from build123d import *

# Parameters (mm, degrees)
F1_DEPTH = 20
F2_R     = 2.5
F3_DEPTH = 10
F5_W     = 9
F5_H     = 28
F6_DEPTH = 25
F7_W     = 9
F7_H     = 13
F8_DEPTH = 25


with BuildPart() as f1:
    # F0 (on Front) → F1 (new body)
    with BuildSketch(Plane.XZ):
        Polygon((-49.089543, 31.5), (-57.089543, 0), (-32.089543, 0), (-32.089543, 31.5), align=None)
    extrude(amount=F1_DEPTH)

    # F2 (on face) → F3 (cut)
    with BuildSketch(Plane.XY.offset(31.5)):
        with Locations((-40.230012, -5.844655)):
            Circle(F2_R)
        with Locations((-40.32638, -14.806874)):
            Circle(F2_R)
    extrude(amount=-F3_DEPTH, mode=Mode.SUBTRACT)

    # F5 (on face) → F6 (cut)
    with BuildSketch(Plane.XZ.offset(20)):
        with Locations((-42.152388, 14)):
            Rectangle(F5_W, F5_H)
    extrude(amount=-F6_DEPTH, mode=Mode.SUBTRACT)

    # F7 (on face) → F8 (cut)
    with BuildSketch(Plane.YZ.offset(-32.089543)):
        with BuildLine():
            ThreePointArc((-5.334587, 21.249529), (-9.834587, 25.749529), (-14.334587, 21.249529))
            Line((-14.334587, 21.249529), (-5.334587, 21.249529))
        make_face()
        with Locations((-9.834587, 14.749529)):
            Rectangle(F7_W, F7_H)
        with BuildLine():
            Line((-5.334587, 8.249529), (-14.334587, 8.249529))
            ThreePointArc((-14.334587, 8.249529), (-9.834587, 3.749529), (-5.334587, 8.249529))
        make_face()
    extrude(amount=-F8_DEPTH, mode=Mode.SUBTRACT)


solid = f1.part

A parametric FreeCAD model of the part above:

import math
import FreeCAD as App
import Part
import Sketcher

V = App.Vector

doc = App.newDocument("Part")
body = doc.addObject("PartDesign::Body", "Body")

# Sketch on XZ plane
sketch1 = body.newObject("Sketcher::SketchObject", "Sketch")
sketch1.AttachmentSupport = (doc.getObject("XZ_Plane"), [""])
sketch1.MapMode = "FlatFace"
sketch1.addGeometry(Part.LineSegment(V(-49, 32, 0), V(-57, 0, 0)), False)
sketch1.addGeometry(Part.LineSegment(V(-57, 0, 0), V(-32, 0, 0)), False)
sketch1.addGeometry(Part.LineSegment(V(-32, 0, 0), V(-32, 32, 0)), False)
sketch1.addGeometry(Part.LineSegment(V(-32, 32, 0), V(-49, 32, 0)), False)
sketch1.addConstraint(Sketcher.Constraint("Coincident", 0, 2, 1, 1))
sketch1.addConstraint(Sketcher.Constraint("Coincident", 1, 2, 2, 1))
sketch1.addConstraint(Sketcher.Constraint("Coincident", 2, 2, 3, 1))
sketch1.addConstraint(Sketcher.Constraint("Coincident", 3, 2, 0, 1))
sketch1.addConstraint(Sketcher.Constraint("Horizontal", 1))
sketch1.addConstraint(Sketcher.Constraint("Vertical", 2))
sketch1.addConstraint(Sketcher.Constraint("Horizontal", 3))
sketch1.addConstraint(Sketcher.Constraint("PointOnObject", 0, 2, -1))
sketch1.addConstraint(Sketcher.Constraint("DistanceX", 1, 1, 1, 2, 25.0))
sketch1.addConstraint(Sketcher.Constraint("DistanceX", 3, 2, 3, 1, 17.0))
sketch1.addConstraint(Sketcher.Constraint("DistanceY", 2, 1, 2, 2, 31.5))
sketch1.addConstraint(Sketcher.Constraint("DistanceX", 0, 2, -1, 1, 57.089543))
pad1 = body.newObject("PartDesign::Pad", "Pad")
pad1.Profile = sketch1
pad1.Length = 20

# Sketch on XY plane
sketch2 = body.newObject("Sketcher::SketchObject", "Sketch001")
sketch2.AttachmentSupport = (doc.getObject("XY_Plane"), [""])
sketch2.MapMode = "FlatFace"
sketch2.AttachmentOffset = App.Placement(V(0, 0, 31.5), App.Rotation())
sketch2.addGeometry(Part.Circle(V(-40.2, -5.8, 0), V(0, 0, 1), 2.5), False)
sketch2.addGeometry(Part.Circle(V(-40.3, -14.8, 0), V(0, 0, 1), 2.5), False)
sketch2.addConstraint(Sketcher.Constraint("Equal", 0, 1))
sketch2.addConstraint(Sketcher.Constraint("Diameter", 0, 5.0))
sketch2.addConstraint(Sketcher.Constraint("DistanceX", 1, 3, -1, 1, 40.32638))
sketch2.addConstraint(Sketcher.Constraint("DistanceY", 1, 3, 0, 3, 8.962219))
sketch2.addConstraint(Sketcher.Constraint("DistanceX", 0, 3, -1, 1, 40.230012))
sketch2.addConstraint(Sketcher.Constraint("DistanceY", 0, 3, -1, 1, 5.844655))
pocket1 = body.newObject("PartDesign::Pocket", "Pocket")
pocket1.Profile = sketch2
pocket1.Length = 10

# Sketch on XZ plane
sketch3 = body.newObject("Sketcher::SketchObject", "Sketch002")
sketch3.AttachmentSupport = (doc.getObject("XZ_Plane"), [""])
sketch3.MapMode = "FlatFace"
sketch3.AttachmentOffset = App.Placement(V(0, 0, 20), App.Rotation())
sketch3.addGeometry(Part.LineSegment(V(-47, 28, 0), V(-47, 0, 0)), False)
sketch3.addGeometry(Part.LineSegment(V(-47, 0, 0), V(-38, 0, 0)), False)
sketch3.addGeometry(Part.LineSegment(V(-38, 0, 0), V(-38, 28, 0)), False)
sketch3.addGeometry(Part.LineSegment(V(-38, 28, 0), V(-47, 28, 0)), False)
sketch3.addConstraint(Sketcher.Constraint("Coincident", 0, 2, 1, 1))
sketch3.addConstraint(Sketcher.Constraint("Coincident", 1, 2, 2, 1))
sketch3.addConstraint(Sketcher.Constraint("Coincident", 2, 2, 3, 1))
sketch3.addConstraint(Sketcher.Constraint("Coincident", 3, 2, 0, 1))
sketch3.addConstraint(Sketcher.Constraint("Vertical", 0))
sketch3.addConstraint(Sketcher.Constraint("Horizontal", 1))
sketch3.addConstraint(Sketcher.Constraint("Vertical", 2))
sketch3.addConstraint(Sketcher.Constraint("Horizontal", 3))
sketch3.addConstraint(Sketcher.Constraint("PointOnObject", 0, 2, -1))
sketch3.addConstraint(Sketcher.Constraint("DistanceX", 1, 1, 1, 2, 9.0))
sketch3.addConstraint(Sketcher.Constraint("DistanceY", 0, 2, 0, 1, 28.0))
sketch3.addConstraint(Sketcher.Constraint("DistanceX", 0, 2, -1, 1, 46.652388))
pocket2 = body.newObject("PartDesign::Pocket", "Pocket001")
pocket2.Profile = sketch3
pocket2.Length = 25

# Sketch on YZ plane
sketch4 = body.newObject("Sketcher::SketchObject", "Sketch003")
sketch4.AttachmentSupport = (doc.getObject("YZ_Plane"), [""])
sketch4.MapMode = "FlatFace"
sketch4.AttachmentOffset = App.Placement(V(0, 0, -32.089543), App.Rotation())
sketch4.addGeometry(Part.LineSegment(V(-5.3, 8.2, 0), V(-5.3, 21.2, 0)), False)
sketch4.addGeometry(Part.ArcOfCircle(Part.Circle(V(-9.8, 21.2, 0), V(0, 0, 1), 4.5), math.radians(0), math.radians(180)), False)
sketch4.addGeometry(Part.LineSegment(V(-14.3, 21.2, 0), V(-14.3, 8.2, 0)), False)
sketch4.addGeometry(Part.ArcOfCircle(Part.Circle(V(-9.8, 8.2, 0), V(0, 0, 1), 4.5), math.radians(180), math.radians(360)), False)
sketch4.addConstraint(Sketcher.Constraint("Tangent", 0, 2, 1, 1))
sketch4.addConstraint(Sketcher.Constraint("Tangent", 1, 2, 2, 1))
sketch4.addConstraint(Sketcher.Constraint("Tangent", 2, 2, 3, 1))
sketch4.addConstraint(Sketcher.Constraint("Tangent", 3, 2, 0, 1))
sketch4.addConstraint(Sketcher.Constraint("Vertical", 0))
sketch4.addConstraint(Sketcher.Constraint("Vertical", 2))
sketch4.addConstraint(Sketcher.Constraint("Radius", 1, 4.5))
sketch4.addConstraint(Sketcher.Constraint("DistanceY", 0, 1, 0, 2, 13.0))
sketch4.addConstraint(Sketcher.Constraint("DistanceY", -1, 1, 1, 3, 21.249529))
sketch4.addConstraint(Sketcher.Constraint("DistanceX", 1, 3, -1, 1, 9.834587))
pocket3 = body.newObject("PartDesign::Pocket", "Pocket002")
pocket3.Profile = sketch4
pocket3.Length = 25

doc.recompute()
